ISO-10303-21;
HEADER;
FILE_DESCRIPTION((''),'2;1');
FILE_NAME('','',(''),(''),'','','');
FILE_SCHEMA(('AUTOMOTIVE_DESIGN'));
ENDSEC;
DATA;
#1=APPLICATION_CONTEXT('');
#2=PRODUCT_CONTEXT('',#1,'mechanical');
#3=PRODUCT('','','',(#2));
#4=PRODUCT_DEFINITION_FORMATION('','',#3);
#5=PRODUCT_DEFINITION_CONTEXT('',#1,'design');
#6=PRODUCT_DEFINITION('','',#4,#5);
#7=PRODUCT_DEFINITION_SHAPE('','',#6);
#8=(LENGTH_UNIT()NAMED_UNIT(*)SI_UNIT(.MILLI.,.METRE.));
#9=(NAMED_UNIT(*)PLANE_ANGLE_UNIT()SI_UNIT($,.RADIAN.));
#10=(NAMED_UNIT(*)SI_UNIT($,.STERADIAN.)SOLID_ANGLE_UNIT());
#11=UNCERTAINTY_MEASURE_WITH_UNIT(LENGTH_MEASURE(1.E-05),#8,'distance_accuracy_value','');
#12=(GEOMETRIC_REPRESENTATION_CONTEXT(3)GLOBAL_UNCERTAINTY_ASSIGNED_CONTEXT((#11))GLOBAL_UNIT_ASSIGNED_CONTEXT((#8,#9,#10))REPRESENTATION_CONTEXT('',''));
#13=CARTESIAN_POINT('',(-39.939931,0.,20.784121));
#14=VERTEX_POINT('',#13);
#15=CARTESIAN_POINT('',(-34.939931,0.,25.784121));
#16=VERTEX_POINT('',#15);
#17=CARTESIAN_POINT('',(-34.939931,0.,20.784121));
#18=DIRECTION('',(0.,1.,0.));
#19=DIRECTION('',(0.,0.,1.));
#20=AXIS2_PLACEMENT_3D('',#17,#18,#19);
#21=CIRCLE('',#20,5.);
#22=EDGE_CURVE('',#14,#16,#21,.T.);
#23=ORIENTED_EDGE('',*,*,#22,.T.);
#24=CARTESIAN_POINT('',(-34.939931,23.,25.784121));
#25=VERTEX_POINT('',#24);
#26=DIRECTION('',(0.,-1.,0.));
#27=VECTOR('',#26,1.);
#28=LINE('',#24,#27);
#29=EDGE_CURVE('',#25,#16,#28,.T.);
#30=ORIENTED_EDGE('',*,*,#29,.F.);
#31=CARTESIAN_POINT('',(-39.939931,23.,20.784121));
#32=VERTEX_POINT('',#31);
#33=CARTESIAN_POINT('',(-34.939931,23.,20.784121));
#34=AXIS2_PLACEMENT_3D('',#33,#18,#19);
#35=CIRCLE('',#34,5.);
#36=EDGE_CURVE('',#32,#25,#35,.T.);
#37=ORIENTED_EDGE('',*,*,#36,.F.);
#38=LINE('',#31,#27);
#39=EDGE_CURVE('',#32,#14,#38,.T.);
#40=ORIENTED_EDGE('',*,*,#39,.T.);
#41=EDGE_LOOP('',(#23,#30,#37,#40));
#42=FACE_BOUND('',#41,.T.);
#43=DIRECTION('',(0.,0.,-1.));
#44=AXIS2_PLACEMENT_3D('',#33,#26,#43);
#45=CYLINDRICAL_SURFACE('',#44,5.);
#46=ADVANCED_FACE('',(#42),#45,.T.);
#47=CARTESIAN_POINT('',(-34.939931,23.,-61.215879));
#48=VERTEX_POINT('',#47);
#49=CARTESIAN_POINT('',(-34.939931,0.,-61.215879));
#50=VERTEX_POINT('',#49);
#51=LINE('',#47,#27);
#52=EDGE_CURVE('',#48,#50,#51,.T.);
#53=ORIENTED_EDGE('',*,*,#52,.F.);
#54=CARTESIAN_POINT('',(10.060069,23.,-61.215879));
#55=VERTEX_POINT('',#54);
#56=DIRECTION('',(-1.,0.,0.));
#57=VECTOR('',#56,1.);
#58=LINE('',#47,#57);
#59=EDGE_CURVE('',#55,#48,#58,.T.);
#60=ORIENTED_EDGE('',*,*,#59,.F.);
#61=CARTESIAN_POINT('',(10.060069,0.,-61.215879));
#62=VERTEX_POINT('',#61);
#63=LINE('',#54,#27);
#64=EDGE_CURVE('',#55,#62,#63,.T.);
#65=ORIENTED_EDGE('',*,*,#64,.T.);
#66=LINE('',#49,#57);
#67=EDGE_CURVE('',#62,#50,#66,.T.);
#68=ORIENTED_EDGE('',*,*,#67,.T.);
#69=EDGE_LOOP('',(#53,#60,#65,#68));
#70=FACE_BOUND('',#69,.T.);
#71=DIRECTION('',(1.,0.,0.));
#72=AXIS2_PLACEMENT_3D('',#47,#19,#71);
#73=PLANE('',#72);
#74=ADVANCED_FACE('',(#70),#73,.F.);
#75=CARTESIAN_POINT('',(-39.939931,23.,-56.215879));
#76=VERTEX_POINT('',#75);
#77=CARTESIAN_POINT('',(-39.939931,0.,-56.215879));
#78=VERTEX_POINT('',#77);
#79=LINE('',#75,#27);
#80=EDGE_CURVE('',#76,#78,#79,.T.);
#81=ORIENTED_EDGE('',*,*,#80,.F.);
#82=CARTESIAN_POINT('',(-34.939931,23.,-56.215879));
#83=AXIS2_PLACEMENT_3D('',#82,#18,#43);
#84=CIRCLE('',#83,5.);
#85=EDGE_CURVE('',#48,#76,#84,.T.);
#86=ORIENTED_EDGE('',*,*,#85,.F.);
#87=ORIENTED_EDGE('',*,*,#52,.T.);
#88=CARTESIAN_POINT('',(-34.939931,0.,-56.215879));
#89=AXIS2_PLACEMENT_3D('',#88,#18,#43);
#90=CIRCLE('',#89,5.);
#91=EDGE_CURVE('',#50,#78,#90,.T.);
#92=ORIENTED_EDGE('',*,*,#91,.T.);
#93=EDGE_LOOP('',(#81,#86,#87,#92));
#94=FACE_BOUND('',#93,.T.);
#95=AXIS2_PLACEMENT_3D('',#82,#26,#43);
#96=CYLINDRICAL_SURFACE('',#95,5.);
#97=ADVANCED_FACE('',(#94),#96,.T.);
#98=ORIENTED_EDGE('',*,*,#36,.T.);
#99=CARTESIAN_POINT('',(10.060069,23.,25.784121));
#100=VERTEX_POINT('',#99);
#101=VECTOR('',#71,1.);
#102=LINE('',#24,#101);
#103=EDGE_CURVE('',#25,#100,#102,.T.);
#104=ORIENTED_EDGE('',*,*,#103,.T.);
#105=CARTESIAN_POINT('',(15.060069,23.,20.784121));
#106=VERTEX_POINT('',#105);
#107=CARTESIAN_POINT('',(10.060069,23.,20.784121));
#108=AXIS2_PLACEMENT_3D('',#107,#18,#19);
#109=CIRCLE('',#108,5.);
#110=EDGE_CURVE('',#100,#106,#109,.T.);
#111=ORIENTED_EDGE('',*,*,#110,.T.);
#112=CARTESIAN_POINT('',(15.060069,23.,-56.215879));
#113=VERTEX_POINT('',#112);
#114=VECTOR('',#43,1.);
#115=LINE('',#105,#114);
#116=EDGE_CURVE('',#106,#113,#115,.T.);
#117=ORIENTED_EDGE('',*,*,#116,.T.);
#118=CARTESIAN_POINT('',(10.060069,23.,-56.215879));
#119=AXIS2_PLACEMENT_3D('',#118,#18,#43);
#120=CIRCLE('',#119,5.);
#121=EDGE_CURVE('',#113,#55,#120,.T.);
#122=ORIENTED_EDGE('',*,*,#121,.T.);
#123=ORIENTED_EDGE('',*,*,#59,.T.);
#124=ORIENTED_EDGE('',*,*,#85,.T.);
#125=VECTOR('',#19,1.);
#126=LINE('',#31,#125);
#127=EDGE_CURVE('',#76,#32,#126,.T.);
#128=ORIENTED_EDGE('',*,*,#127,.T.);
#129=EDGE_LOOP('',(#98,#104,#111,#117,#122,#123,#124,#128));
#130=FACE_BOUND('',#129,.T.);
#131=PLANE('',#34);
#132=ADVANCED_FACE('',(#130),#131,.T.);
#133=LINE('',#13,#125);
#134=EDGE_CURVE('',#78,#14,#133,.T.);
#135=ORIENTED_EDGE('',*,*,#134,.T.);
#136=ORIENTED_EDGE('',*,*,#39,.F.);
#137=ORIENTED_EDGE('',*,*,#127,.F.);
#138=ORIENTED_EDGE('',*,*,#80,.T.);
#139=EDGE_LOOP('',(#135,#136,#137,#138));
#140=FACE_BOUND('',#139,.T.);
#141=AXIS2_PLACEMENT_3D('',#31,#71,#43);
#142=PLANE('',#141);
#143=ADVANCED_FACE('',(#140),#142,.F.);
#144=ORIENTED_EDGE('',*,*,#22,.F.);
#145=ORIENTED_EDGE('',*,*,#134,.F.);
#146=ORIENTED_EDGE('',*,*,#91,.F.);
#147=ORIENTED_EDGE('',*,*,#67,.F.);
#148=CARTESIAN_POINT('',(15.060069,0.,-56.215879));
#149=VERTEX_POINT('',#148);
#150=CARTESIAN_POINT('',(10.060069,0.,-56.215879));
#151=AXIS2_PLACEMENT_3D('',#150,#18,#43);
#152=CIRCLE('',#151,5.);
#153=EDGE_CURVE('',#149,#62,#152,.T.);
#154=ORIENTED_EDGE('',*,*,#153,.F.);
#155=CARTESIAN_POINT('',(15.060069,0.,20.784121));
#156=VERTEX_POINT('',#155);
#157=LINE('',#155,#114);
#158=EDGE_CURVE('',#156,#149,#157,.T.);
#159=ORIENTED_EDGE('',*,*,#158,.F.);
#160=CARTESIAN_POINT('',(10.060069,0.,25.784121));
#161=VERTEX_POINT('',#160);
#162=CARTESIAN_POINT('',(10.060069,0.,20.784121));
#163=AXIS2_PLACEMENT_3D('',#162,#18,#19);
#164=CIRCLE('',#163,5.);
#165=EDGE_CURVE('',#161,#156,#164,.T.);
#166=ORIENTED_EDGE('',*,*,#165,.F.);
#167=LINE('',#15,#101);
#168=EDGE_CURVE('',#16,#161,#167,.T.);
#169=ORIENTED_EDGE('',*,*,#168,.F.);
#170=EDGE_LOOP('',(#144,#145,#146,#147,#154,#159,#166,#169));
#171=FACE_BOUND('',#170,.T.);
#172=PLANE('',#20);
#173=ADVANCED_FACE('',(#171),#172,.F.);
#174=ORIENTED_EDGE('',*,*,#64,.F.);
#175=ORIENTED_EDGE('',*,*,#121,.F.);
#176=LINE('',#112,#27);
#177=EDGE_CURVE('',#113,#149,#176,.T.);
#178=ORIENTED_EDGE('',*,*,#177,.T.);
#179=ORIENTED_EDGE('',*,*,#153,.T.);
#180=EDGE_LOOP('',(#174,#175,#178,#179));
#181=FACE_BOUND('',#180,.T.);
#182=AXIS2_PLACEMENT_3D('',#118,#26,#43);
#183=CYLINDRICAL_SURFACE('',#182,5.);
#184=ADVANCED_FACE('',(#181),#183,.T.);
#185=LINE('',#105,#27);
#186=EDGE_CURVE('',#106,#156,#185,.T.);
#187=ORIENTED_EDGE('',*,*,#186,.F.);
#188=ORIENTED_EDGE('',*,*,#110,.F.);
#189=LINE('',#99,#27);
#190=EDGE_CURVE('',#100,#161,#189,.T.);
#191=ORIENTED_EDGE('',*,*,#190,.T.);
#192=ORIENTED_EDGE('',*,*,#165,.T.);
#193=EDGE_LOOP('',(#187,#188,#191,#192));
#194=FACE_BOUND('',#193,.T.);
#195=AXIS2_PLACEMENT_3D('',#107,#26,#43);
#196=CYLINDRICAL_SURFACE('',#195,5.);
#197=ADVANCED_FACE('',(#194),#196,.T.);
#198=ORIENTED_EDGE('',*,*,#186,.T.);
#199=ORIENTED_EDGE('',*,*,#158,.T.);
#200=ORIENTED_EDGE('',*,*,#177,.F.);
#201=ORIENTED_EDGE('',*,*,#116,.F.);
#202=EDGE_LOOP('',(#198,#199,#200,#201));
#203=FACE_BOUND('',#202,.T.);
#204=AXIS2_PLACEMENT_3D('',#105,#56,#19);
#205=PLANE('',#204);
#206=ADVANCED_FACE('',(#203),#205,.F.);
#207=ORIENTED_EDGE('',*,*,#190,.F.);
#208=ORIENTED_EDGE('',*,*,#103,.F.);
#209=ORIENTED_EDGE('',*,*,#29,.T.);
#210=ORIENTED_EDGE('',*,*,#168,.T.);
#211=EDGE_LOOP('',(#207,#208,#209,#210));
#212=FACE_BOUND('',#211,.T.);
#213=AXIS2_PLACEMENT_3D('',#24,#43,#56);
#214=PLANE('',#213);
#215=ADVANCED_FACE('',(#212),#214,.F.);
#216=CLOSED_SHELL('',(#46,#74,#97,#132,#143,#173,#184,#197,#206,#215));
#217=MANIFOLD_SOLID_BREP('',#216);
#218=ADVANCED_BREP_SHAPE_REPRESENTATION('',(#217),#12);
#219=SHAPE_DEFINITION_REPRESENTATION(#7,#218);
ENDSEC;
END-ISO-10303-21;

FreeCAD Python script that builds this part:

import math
import FreeCAD as App
import Part
import Sketcher

V = App.Vector

doc = App.newDocument("Part")
body = doc.addObject("PartDesign::Body", "Body")

# Sketch on XZ plane
sketch1 = body.newObject("Sketcher::SketchObject", "Sketch")
sketch1.AttachmentSupport = (doc.getObject("XZ_Plane"), [""])
sketch1.MapMode = "FlatFace"
sketch1.addGeometry(Part.LineSegment(V(-35, 26, 0), V(10, 26, 0)), False)
sketch1.addGeometry(Part.ArcOfCircle(Part.Circle(V(10, 21, 0), V(0, 0, 1), 5), math.radians(0), math.radians(90)), False)
sketch1.addGeometry(Part.LineSegment(V(15, 21, 0), V(15, -56, 0)), False)
sketch1.addGeometry(Part.ArcOfCircle(Part.Circle(V(10, -56, 0), V(0, 0, 1), 5), math.radians(-90), math.radians(0)), False)
sketch1.addGeometry(Part.LineSegment(V(10, -61, 0), V(-35, -61, 0)), False)
sketch1.addGeometry(Part.ArcOfCircle(Part.Circle(V(-35, -56, 0), V(0, 0, 1), 5), math.radians(180), math.radians(270)), False)
sketch1.addGeometry(Part.LineSegment(V(-40, -56, 0), V(-40, 21, 0)), False)
sketch1.addGeometry(Part.ArcOfCircle(Part.Circle(V(-35, 21, 0), V(0, 0, 1), 5), math.radians(90), math.radians(180)), False)
sketch1.addConstraint(Sketcher.Constraint("Tangent", 0, 2, 1, 2))
sketch1.addConstraint(Sketcher.Constraint("Tangent", 1, 1, 2, 1))
sketch1.addConstraint(Sketcher.Constraint("Tangent", 2, 2, 3, 2))
sketch1.addConstraint(Sketcher.Constraint("Tangent", 3, 1, 4, 1))
sketch1.addConstraint(Sketcher.Constraint("Tangent", 4, 2, 5, 2))
sketch1.addConstraint(Sketcher.Constraint("Tangent", 5, 1, 6, 1))
sketch1.addConstraint(Sketcher.Constraint("Tangent", 6, 2, 7, 2))
sketch1.addConstraint(Sketcher.Constraint("Tangent", 7, 1, 0, 1))
sketch1.addConstraint(Sketcher.Constraint("Horizontal", 0))
sketch1.addConstraint(Sketcher.Constraint("Vertical", 2))
sketch1.addConstraint(Sketcher.Constraint("Horizontal", 4))
sketch1.addConstraint(Sketcher.Constraint("Vertical", 6))
sketch1.addConstraint(Sketcher.Constraint("Equal", 1, 3))
sketch1.addConstraint(Sketcher.Constraint("Equal", 3, 5))
sketch1.addConstraint(Sketcher.Constraint("Equal", 5, 7))
sketch1.addConstraint(Sketcher.Constraint("Radius", 1, 5.0))
sketch1.addConstraint(Sketcher.Constraint("DistanceX", 0, 1, 0, 2, 45.0))
sketch1.addConstraint(Sketcher.Constraint("DistanceY", 2, 2, 2, 1, 77.0))
sketch1.addConstraint(Sketcher.Constraint("DistanceX", -1, 1, 1, 3, 10.060069))
sketch1.addConstraint(Sketcher.Constraint("DistanceY", -1, 1, 1, 3, 20.784121))
pad1 = body.newObject("PartDesign::Pad", "Pad")
pad1.Profile = sketch1
pad1.Length = 23
pad1.Reversed = True

doc.recompute()
